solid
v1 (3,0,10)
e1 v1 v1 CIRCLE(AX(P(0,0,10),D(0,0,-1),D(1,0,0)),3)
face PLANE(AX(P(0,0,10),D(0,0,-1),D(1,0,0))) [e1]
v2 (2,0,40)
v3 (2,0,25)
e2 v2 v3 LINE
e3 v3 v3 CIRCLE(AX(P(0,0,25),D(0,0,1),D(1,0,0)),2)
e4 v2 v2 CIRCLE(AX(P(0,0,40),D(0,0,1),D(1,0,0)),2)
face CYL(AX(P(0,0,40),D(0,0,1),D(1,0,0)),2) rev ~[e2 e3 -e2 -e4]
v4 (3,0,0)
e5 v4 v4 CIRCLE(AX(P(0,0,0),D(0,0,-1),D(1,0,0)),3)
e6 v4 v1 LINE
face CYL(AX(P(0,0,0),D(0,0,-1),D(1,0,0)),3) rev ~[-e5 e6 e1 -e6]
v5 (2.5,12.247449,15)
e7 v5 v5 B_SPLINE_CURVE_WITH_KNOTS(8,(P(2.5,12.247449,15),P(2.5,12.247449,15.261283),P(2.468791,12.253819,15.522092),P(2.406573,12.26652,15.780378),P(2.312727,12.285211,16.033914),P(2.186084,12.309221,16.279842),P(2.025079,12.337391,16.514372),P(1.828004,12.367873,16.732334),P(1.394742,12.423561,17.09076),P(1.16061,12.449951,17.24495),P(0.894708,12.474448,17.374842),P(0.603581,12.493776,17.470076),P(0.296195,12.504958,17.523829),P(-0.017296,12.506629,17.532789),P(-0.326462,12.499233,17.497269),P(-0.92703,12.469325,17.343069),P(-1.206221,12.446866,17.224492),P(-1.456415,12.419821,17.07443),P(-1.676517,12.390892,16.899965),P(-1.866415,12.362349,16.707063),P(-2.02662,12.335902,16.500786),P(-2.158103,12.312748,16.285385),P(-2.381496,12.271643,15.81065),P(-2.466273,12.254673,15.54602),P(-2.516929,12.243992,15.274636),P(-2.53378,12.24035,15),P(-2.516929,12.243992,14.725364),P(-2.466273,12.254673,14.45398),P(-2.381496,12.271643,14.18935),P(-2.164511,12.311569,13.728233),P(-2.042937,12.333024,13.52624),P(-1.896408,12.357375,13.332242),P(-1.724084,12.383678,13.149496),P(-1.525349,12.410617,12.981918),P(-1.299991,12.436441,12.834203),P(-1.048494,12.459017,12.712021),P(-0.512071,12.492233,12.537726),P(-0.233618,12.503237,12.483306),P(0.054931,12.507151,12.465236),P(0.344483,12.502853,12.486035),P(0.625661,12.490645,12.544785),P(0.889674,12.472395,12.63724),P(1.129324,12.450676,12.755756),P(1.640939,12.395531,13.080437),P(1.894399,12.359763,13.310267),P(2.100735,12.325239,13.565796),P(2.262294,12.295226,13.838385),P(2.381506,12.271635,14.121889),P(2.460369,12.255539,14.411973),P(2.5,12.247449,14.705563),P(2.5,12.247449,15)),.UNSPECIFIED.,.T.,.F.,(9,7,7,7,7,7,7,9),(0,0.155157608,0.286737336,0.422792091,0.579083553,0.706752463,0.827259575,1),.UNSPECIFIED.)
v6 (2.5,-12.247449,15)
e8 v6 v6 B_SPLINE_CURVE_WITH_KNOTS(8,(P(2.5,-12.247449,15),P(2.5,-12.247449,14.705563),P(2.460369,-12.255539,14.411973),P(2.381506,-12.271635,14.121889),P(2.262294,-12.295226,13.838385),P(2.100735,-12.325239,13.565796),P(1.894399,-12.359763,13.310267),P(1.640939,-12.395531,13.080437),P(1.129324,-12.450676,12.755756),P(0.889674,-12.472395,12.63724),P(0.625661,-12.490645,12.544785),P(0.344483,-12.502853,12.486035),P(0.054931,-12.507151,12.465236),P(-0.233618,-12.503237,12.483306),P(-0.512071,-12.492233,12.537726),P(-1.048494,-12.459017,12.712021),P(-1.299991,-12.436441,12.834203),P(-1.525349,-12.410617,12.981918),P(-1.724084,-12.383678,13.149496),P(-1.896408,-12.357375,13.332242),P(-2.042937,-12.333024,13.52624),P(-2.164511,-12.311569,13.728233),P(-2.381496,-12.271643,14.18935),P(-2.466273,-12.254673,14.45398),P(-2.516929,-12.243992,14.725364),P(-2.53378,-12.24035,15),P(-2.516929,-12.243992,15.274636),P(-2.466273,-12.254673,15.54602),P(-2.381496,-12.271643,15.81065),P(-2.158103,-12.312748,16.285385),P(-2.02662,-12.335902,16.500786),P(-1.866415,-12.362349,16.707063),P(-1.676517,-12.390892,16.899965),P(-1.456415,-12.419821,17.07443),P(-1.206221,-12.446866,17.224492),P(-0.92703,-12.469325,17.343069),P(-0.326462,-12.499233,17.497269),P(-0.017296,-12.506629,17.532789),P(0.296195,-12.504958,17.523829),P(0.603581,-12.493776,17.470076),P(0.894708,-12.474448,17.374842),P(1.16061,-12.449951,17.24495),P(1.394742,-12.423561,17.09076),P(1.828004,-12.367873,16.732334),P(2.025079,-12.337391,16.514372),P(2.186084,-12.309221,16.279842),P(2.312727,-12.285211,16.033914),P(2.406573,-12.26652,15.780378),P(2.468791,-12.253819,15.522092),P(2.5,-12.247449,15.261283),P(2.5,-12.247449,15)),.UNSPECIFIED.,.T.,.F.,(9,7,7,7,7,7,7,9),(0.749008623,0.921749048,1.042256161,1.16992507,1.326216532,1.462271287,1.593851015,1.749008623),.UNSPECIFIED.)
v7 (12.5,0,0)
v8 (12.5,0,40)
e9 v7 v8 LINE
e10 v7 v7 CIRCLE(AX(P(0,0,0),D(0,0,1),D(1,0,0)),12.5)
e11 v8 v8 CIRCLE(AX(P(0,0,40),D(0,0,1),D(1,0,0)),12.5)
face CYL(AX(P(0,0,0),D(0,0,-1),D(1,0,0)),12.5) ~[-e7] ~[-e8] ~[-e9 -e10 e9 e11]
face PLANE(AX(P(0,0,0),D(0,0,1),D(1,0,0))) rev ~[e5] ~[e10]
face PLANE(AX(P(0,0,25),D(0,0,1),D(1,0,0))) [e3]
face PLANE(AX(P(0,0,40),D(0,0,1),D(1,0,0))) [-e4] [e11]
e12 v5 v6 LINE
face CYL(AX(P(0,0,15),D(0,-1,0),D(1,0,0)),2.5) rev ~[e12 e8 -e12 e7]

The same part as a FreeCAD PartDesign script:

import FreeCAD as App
import Part
import Sketcher
from FreeCAD import Vector

doc = App.newDocument("Part")
body = doc.addObject("PartDesign::Body", "Body")

# Sketch on XY plane
sketch1 = body.newObject("Sketcher::SketchObject", "Sketch")
sketch1.AttachmentSupport = (doc.getObject("XY_Plane"), [""])
sketch1.MapMode = "FlatFace"
sketch1.addGeometry(Part.Circle(Vector(0, 0, 0), Vector(0, 0, 1), 12), False)
sketch1.addConstraint(Sketcher.Constraint("Coincident", 0, 3, -1, 1))
sketch1.addConstraint(Sketcher.Constraint("Diameter", 0, 25.0))
pad1 = body.newObject("PartDesign::Pad", "Pad")
pad1.Profile = sketch1
pad1.Length = 40

# Sketch on XY plane
sketch2 = body.newObject("Sketcher::SketchObject", "Sketch001")
sketch2.AttachmentSupport = (doc.getObject("XY_Plane"), [""])
sketch2.MapMode = "FlatFace"
sketch2.AttachmentOffset = App.Placement(Vector(0, 0, 40), App.Rotation())
sketch2.addGeometry(Part.Circle(Vector(0, 0, 0), Vector(0, 0, 1), 2), False)
sketch2.addConstraint(Sketcher.Constraint("Coincident", 0, 3, -1, 1))
sketch2.addConstraint(Sketcher.Constraint("Diameter", 0, 4.0))
pocket1 = body.newObject("PartDesign::Pocket", "Pocket")
pocket1.Profile = sketch2
pocket1.Length = 15

# Sketch on XY plane
sketch3 = body.newObject("Sketcher::SketchObject", "Sketch002")
sketch3.AttachmentSupport = (doc.getObject("XY_Plane"), [""])
sketch3.MapMode = "FlatFace"
sketch3.addGeometry(Part.Circle(Vector(0, 0, 0), Vector(0, 0, 1), 3), False)
sketch3.addConstraint(Sketcher.Constraint("Coincident", 0, 3, -1, 1))
sketch3.addConstraint(Sketcher.Constraint("Diameter", 0, 6.0))
pocket2 = body.newObject("PartDesign::Pocket", "Pocket001")
pocket2.Profile = sketch3
pocket2.Length = 10
pocket2.Reversed = True

# Sketch on XZ plane
sketch4 = body.newObject("Sketcher::SketchObject", "Sketch003")
sketch4.AttachmentSupport = (doc.getObject("XZ_Plane"), [""])
sketch4.MapMode = "FlatFace"
sketch4.addGeometry(Part.Circle(Vector(0, 15, 0), Vector(0, 0, 1), 2.5), False)
sketch4.addConstraint(Sketcher.Constraint("PointOnObject", 0, 3, -2))
sketch4.addConstraint(Sketcher.Constraint("Diameter", 0, 5.0))
sketch4.addConstraint(Sketcher.Constraint("DistanceY", -1, 1, 0, 3, 15.0))
pocket3 = body.newObject("PartDesign::Pocket", "Pocket002")
pocket3.Profile = sketch4
pocket3.Length = 25
pocket3.Midplane = True

doc.recompute()
